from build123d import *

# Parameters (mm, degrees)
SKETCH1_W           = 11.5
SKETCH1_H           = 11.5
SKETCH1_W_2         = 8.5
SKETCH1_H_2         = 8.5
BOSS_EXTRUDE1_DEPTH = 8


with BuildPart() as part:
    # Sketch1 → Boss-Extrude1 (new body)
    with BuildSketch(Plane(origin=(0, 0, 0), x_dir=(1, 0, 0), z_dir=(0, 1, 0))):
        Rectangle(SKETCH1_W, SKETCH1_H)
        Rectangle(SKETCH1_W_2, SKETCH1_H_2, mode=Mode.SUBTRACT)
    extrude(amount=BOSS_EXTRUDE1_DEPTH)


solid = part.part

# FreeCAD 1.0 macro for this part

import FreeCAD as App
import Part
import Sketcher
Q = App.Units.Quantity

doc = App.newDocument("Part")
body = doc.addObject("PartDesign::Body", "Body")

sketch1 = body.newObject("Sketcher::SketchObject", "Sketch")
sketch1.AttachmentSupport = (doc.getObject("XZ_Plane"), [""])
sketch1.MapMode = "FlatFace"
sketch1.addGeometry([
    Part.LineSegment(App.Vector(-5.75, -5.75, 0), App.Vector(-5.75, 5.75, 0)),
    Part.LineSegment(App.Vector(-5.75, 5.75, 0), App.Vector(5.75, 5.75, 0)),
    Part.LineSegment(App.Vector(5.75, 5.75, 0), App.Vector(5.75, -5.75, 0)),
    Part.LineSegment(App.Vector(5.75, -5.75, 0), App.Vector(-5.75, -5.75, 0)),
    Part.LineSegment(App.Vector(4.25, 4.25, 0), App.Vector(-4.25, 4.25, 0)),
    Part.LineSegment(App.Vector(-4.25, 4.25, 0), App.Vector(-4.25, -4.25, 0)),
    Part.LineSegment(App.Vector(-4.25, -4.25, 0), App.Vector(4.25, -4.25, 0)),
    Part.LineSegment(App.Vector(4.25, -4.25, 0), App.Vector(4.25, 4.25, 0)),
], False)
sketch1.addConstraint([
    Sketcher.Constraint("Coincident", 0, 2, 1, 1),
    Sketcher.Constraint("Coincident", 1, 2, 2, 1),
    Sketcher.Constraint("Coincident", 2, 2, 3, 1),
    Sketcher.Constraint("Coincident", 3, 2, 0, 1),
    Sketcher.Constraint("Coincident", 4, 2, 5, 1),
    Sketcher.Constraint("Coincident", 5, 2, 6, 1),
    Sketcher.Constraint("Coincident", 6, 2, 7, 1),
    Sketcher.Constraint("Coincident", 7, 2, 4, 1),
    Sketcher.Constraint("Vertical", 0),
    Sketcher.Constraint("Horizontal", 1),
    Sketcher.Constraint("Vertical", 2),
    Sketcher.Constraint("Horizontal", 3),
    Sketcher.Constraint("Horizontal", 4),
    Sketcher.Constraint("Vertical", 5),
    Sketcher.Constraint("Horizontal", 6),
    Sketcher.Constraint("Vertical", 7),
    Sketcher.Constraint("Symmetric", 0, 2, 2, 2, -1, 1),
    Sketcher.Constraint("Symmetric", 4, 2, 6, 2, -1, 1),
    Sketcher.Constraint("Equal", 3, 0),
    Sketcher.Constraint("Equal", 6, 5),
    Sketcher.Constraint("DistanceX", 1, 1, 1, 2, Q("11.5 mm")),
    Sketcher.Constraint("DistanceX", 4, 2, 4, 1, Q("8.5 mm")),
])
pad1 = body.newObject("PartDesign::Pad", "Pad")
pad1.Profile = sketch1
pad1.Length = 8
pad1.Reversed = True

doc.recompute()
